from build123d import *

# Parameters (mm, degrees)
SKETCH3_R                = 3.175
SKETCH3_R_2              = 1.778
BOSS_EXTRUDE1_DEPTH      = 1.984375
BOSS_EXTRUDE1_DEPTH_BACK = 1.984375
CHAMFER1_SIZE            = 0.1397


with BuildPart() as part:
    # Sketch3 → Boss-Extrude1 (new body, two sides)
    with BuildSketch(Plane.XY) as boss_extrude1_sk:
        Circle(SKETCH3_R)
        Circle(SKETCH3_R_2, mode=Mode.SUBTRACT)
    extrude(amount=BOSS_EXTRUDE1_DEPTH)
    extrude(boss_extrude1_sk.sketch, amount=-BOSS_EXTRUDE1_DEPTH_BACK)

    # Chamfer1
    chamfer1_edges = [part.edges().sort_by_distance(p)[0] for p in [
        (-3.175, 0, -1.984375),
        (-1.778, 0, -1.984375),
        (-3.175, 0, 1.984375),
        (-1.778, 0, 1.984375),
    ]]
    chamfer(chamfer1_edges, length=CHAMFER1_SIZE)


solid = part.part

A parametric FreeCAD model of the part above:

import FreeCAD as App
import Part
import Sketcher
from FreeCAD import Vector
Q = App.Units.Quantity


def edges_at(feature, points):
    """Names of the edges that pass closest to the given points."""
    edges = feature.Shape.Edges
    near = lambda p: min(range(len(edges)), key=lambda i: edges[i].distToShape(Part.Vertex(*p))[0])
    return sorted({f"Edge{near(p) + 1}" for p in points})

doc = App.newDocument("Part")
params = doc.addObject("Spreadsheet::Sheet", "Params")
for row, (alias, value) in enumerate([
    ("sketch1_diameter", "0.25 in"),
    ("sketch1_diameter2", "0.14 in"),
    ("pad1_length", "0.078125 in"),
    ("pad1_length2", "0.078125 in"),
    ("chamfer_size", "0.0055 in"),
], start=1):
    params.set(f"A{row}", alias)
    params.set(f"B{row}", "=" + value)
    params.setAlias(f"B{row}", alias)

body = doc.addObject("PartDesign::Body", "Body")

# Sketch on XY plane
sketch1 = body.newObject("Sketcher::SketchObject", "Sketch")
sketch1.AttachmentSupport = (doc.getObject("XY_Plane"), [""])
sketch1.MapMode = "FlatFace"
sketch1.addGeometry(Part.Circle(Vector(0, 0, 0), Vector(0, 0, 1), 3.2), False)
sketch1.addGeometry(Part.Circle(Vector(0, 0, 0), Vector(0, 0, 1), 1.8), False)
sketch1.addConstraint(Sketcher.Constraint("Coincident", 0, 3, -1, 1))
sketch1.addConstraint(Sketcher.Constraint("Coincident", 1, 3, -1, 1))
sketch1.addConstraint(Sketcher.Constraint("Diameter", 0, Q("0.25 in")))
sketch1.addConstraint(Sketcher.Constraint("Diameter", 1, Q("0.14 in")))
sketch1.setExpression("Constraints[2]", "Params.sketch1_diameter")
sketch1.setExpression("Constraints[3]", "Params.sketch1_diameter2")
pad1 = body.newObject("PartDesign::Pad", "Pad")
pad1.Profile = sketch1
pad1.Type = "TwoLengths"
pad1.setExpression("Length", "Params.pad1_length")
pad1.setExpression("Length2", "Params.pad1_length2")
doc.recompute()

chamfer = body.newObject("PartDesign::Chamfer", "Chamfer")
chamfer.Base = (pad1, edges_at(pad1, [
    (-3.175, 0, -1.984),
    (-1.778, 0, -1.984),
    (-3.175, 0, 1.984),
    (-1.778, 0, 1.984),
]))
chamfer.setExpression("Size", "Params.chamfer_size")

doc.recompute()
